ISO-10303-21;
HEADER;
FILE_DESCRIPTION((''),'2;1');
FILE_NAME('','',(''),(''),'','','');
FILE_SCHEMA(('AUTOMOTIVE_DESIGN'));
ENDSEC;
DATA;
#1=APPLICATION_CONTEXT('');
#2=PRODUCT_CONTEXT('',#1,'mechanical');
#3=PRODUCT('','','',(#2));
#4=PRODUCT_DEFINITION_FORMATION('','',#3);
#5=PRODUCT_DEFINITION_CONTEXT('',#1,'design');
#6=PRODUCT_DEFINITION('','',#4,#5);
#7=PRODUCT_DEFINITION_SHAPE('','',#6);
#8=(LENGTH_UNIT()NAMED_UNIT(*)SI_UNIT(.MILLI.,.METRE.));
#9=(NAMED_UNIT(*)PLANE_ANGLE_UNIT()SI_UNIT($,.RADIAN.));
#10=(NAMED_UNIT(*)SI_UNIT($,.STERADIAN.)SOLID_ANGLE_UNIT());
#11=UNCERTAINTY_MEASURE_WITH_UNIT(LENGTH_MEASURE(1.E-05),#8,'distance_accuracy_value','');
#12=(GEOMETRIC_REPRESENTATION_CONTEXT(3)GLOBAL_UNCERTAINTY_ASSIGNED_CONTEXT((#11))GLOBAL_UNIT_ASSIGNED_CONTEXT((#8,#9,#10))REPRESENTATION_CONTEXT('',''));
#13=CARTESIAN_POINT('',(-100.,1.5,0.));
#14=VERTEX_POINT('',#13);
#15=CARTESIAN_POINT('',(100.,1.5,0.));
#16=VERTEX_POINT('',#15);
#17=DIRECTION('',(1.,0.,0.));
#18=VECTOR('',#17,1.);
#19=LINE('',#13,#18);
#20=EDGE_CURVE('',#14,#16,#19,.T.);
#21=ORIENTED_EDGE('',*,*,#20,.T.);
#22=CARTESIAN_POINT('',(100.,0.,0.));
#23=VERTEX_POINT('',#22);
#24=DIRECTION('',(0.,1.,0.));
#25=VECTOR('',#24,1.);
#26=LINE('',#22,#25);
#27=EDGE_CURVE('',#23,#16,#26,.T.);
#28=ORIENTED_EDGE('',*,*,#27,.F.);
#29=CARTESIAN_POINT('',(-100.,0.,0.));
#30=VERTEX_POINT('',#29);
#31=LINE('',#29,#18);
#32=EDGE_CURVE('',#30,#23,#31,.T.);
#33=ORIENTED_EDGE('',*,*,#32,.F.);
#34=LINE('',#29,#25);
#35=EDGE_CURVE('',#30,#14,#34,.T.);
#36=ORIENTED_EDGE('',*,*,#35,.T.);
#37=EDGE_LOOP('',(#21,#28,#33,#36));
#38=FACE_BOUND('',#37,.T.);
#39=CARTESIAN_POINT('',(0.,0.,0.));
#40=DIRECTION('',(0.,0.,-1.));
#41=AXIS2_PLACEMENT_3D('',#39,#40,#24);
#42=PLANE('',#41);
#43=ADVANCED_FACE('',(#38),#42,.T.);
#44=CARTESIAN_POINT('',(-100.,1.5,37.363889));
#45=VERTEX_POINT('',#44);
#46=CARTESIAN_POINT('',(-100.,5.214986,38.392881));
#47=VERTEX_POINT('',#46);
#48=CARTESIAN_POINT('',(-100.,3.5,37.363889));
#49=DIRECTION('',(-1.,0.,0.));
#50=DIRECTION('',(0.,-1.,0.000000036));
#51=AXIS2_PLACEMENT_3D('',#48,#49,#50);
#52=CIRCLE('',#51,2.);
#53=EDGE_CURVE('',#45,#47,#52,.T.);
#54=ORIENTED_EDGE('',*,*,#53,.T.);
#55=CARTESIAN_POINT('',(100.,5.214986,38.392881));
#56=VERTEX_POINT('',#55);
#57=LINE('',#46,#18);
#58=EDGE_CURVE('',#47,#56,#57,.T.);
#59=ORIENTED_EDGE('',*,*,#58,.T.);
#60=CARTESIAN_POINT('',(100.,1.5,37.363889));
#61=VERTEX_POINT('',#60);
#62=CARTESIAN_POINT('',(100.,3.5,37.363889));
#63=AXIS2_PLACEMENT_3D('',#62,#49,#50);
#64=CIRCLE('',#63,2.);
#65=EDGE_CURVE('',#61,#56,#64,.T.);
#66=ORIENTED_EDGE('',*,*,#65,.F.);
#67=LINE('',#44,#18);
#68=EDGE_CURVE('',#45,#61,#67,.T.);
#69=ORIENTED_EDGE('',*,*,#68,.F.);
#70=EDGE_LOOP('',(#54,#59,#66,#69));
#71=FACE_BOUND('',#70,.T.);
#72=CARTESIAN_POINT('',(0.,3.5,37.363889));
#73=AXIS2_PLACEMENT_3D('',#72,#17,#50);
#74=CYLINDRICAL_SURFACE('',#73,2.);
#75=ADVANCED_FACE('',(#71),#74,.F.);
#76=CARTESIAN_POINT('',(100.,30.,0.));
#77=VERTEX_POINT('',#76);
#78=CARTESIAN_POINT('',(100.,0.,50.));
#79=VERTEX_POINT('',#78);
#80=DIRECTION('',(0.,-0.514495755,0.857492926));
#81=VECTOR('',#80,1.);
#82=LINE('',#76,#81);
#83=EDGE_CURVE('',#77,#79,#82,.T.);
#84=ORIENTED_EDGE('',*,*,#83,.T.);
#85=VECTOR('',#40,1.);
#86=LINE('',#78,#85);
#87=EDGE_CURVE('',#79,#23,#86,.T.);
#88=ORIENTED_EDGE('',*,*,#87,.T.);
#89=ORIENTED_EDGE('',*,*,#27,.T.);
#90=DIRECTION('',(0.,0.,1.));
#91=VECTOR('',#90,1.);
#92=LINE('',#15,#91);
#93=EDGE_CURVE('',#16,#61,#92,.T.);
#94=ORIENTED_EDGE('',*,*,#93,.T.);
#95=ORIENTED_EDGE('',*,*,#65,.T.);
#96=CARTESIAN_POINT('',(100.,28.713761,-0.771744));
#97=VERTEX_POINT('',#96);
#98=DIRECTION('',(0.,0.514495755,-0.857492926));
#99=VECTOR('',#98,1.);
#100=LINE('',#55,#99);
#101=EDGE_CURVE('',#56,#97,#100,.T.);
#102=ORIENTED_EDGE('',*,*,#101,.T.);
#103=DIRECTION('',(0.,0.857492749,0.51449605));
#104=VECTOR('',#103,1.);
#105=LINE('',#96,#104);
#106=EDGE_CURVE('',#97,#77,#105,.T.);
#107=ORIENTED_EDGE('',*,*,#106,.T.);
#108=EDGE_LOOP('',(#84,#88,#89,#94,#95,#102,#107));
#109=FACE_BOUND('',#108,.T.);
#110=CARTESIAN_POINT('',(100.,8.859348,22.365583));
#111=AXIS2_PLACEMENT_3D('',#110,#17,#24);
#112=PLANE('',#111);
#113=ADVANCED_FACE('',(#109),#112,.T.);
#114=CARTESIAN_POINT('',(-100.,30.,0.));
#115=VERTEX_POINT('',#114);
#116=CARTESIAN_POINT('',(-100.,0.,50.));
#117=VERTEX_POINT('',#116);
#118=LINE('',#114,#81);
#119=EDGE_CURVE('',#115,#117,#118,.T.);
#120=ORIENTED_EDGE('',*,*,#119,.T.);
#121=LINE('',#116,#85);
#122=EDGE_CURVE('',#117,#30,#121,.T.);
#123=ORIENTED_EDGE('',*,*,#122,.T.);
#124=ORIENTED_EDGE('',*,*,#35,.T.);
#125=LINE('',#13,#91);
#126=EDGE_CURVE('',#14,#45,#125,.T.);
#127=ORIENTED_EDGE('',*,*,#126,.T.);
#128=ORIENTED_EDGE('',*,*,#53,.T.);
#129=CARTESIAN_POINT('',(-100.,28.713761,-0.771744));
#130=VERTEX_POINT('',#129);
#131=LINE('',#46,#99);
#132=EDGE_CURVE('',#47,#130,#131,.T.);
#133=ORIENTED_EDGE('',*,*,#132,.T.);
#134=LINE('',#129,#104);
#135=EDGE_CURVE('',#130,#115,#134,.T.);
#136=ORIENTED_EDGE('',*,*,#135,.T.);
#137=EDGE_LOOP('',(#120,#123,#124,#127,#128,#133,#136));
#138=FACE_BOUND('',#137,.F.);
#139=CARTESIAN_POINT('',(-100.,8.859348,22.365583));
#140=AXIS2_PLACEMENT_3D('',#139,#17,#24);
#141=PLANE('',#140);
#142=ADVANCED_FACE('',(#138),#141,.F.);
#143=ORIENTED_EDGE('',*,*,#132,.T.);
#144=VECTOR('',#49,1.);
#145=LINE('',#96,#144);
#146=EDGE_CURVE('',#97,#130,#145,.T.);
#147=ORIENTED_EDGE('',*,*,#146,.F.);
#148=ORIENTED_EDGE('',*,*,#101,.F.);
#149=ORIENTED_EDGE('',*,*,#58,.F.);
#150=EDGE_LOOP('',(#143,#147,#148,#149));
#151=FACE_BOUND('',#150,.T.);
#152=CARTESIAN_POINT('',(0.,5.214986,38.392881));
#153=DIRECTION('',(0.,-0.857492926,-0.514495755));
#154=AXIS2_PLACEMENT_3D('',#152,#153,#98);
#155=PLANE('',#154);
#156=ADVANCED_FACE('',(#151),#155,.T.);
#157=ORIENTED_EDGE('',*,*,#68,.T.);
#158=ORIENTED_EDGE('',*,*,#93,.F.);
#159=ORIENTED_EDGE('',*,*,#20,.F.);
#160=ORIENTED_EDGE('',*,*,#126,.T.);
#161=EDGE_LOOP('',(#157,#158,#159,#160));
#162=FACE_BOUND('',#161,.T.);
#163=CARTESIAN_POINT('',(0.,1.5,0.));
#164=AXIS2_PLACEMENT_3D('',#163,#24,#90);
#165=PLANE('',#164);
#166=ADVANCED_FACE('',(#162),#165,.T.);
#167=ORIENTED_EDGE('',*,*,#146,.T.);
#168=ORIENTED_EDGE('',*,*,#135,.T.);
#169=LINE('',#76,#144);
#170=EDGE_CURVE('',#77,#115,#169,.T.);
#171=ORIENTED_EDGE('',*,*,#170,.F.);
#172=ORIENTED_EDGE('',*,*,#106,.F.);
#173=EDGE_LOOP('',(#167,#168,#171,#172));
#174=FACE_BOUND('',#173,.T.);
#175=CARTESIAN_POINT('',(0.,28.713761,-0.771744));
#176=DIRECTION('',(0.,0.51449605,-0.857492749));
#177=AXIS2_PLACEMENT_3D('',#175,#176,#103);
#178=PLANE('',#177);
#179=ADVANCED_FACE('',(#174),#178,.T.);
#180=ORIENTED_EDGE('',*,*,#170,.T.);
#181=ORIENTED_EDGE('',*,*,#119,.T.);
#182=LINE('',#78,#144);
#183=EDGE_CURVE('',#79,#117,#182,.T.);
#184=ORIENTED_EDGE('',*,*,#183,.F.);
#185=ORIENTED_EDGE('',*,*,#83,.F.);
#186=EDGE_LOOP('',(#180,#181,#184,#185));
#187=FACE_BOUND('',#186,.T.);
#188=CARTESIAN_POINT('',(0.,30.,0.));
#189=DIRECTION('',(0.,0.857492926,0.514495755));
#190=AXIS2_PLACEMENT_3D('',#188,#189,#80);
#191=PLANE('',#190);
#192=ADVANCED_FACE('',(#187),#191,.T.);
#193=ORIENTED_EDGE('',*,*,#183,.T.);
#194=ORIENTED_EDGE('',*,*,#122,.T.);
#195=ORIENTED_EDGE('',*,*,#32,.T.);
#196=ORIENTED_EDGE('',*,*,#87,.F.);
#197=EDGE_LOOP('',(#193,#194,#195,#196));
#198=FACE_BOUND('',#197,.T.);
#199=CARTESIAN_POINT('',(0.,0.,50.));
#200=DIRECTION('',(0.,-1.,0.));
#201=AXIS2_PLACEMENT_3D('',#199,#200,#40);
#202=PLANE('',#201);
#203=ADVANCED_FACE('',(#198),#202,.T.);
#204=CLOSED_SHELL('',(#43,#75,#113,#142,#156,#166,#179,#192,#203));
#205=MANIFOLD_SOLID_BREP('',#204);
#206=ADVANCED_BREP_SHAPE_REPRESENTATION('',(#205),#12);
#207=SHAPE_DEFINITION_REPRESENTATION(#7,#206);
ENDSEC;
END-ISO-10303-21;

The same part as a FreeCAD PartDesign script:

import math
import FreeCAD as App
import Part
import Sketcher
Q = App.Units.Quantity

doc = App.newDocument("Part")
params = doc.addObject("Spreadsheet::Sheet", "Params")
for row, (alias, value) in enumerate([
    ("sketch1_radius", "2 mm"),
    ("sketch1_height", "50 mm"),
    ("sketch1_width", "1.5 mm"),
    ("sketch1_length", "1.5 mm"),
    ("pad1_length", "200 mm"),
], start=1):
    params.set(f"A{row}", alias)
    params.set(f"B{row}", "=" + value)
    params.setAlias(f"B{row}", alias)

body = doc.addObject("PartDesign::Body", "Body")

# Sketch on YZ plane
sketch1 = body.newObject("Sketcher::SketchObject", "Sketch")
sketch1.AttachmentSupport = (doc.getObject("YZ_Plane"), [""])
sketch1.MapMode = "FlatFace"
sketch1.addGeometry(Part.LineSegment(App.Vector(0, 50, 0), App.Vector(0, 0, 0)), False)
sketch1.addGeometry(Part.LineSegment(App.Vector(0, 0, 0), App.Vector(1.5, 0, 0)), False)
sketch1.addGeometry(Part.LineSegment(App.Vector(1.5, 0, 0), App.Vector(1.5, 37.4, 0)), False)
sketch1.addGeometry(Part.ArcOfCircle(Part.Circle(App.Vector(3.5, 37.4, 0), App.Vector(0, 0, 1), 2), math.radians(31), math.radians(180)), False)
sketch1.addGeometry(Part.LineSegment(App.Vector(5.2, 38.4, 0), App.Vector(28.7, -0.8, 0)), False)
sketch1.addGeometry(Part.LineSegment(App.Vector(28.7, -0.8, 0), App.Vector(30, 0, 0)), False)
sketch1.addGeometry(Part.LineSegment(App.Vector(30, 0, 0), App.Vector(0, 50, 0)), False)
sketch1.addConstraint(Sketcher.Constraint("Coincident", 0, 2, 1, 1))
sketch1.addConstraint(Sketcher.Constraint("Coincident", 1, 2, 2, 1))
sketch1.addConstraint(Sketcher.Constraint("Tangent", 2, 2, 3, 2))
sketch1.addConstraint(Sketcher.Constraint("Tangent", 3, 1, 4, 1))
sketch1.addConstraint(Sketcher.Constraint("Coincident", 4, 2, 5, 1))
sketch1.addConstraint(Sketcher.Constraint("Coincident", 5, 2, 6, 1))
sketch1.addConstraint(Sketcher.Constraint("Coincident", 6, 2, 0, 1))
sketch1.addConstraint(Sketcher.Constraint("Vertical", 0))
sketch1.addConstraint(Sketcher.Constraint("Horizontal", 1))
sketch1.addConstraint(Sketcher.Constraint("Vertical", 2))
sketch1.addConstraint(Sketcher.Constraint("Coincident", 0, 2, -1, 1))
sketch1.addConstraint(Sketcher.Constraint("PointOnObject", 5, 2, -1))
sketch1.addConstraint(Sketcher.Constraint("Perpendicular", 4, 5))
sketch1.addConstraint(Sketcher.Constraint("Perpendicular", 5, 6))
sketch1.addConstraint(Sketcher.Constraint("Radius", 3, Q("2 mm")))
sketch1.addConstraint(Sketcher.Constraint("DistanceY", 0, 2, 0, 1, Q("50 mm")))
sketch1.addConstraint(Sketcher.Constraint("DistanceX", 1, 1, 1, 2, Q("1.5 mm")))
sketch1.addConstraint(Sketcher.Constraint("DistanceX", -1, 1, 5, 2, Q("30 mm")))
sketch1.addConstraint(Sketcher.Constraint("Distance", 5, Q("1.5 mm")))
sketch1.setExpression("Constraints[14]", "Params.sketch1_radius")
sketch1.setExpression("Constraints[15]", "Params.sketch1_height")
sketch1.setExpression("Constraints[16]", "Params.sketch1_width")
sketch1.setExpression("Constraints[18]", "Params.sketch1_length")
pad1 = body.newObject("PartDesign::Pad", "Pad")
pad1.Profile = sketch1
pad1.setExpression("Length", "Params.pad1_length")
pad1.Midplane = True

doc.recompute()
